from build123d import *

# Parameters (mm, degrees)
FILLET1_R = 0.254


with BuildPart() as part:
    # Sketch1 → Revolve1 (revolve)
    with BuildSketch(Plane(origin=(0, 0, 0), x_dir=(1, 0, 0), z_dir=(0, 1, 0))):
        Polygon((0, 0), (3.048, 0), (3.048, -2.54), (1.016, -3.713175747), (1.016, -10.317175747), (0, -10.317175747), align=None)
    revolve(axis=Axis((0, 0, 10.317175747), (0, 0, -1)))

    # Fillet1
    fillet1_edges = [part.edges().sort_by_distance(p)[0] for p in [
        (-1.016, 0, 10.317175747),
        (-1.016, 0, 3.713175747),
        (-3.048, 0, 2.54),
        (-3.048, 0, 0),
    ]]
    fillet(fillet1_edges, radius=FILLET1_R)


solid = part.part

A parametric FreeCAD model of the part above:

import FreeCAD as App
import Part
import Sketcher
from FreeCAD import Vector
Q = App.Units.Quantity


def edges_at(feature, points):
    """Names of the edges that pass closest to the given points."""
    edges = feature.Shape.Edges
    near = lambda p: min(range(len(edges)), key=lambda i: edges[i].distToShape(Part.Vertex(*p))[0])
    return sorted({f"Edge{near(p) + 1}" for p in points})

doc = App.newDocument("Part")
body = doc.addObject("PartDesign::Body", "Body")

sketch1 = doc.addObject("Sketcher::SketchObject", "Sketch")
body.addObject(sketch1)
sketch1.AttachmentSupport = (doc.XZ_Plane, [""])
sketch1.MapMode = "FlatFace"
sketch1.addGeometry([
    Part.LineSegment(Vector(3, 0, 0), Vector(0, 0, 0)),
    Part.LineSegment(Vector(0, 0, 0), Vector(0, 10.3, 0)),
    Part.LineSegment(Vector(0, 10.3, 0), Vector(1, 10.3, 0)),
    Part.LineSegment(Vector(1, 10.3, 0), Vector(1, 3.7, 0)),
    Part.LineSegment(Vector(1, 3.7, 0), Vector(3, 2.5, 0)),
    Part.LineSegment(Vector(3, 2.5, 0), Vector(3, 0, 0)),
], False)
sketch1.addConstraint([
    Sketcher.Constraint("Coincident", 0, 2, 1, 1),
    Sketcher.Constraint("Coincident", 1, 2, 2, 1),
    Sketcher.Constraint("Coincident", 2, 2, 3, 1),
    Sketcher.Constraint("Coincident", 3, 2, 4, 1),
    Sketcher.Constraint("Coincident", 4, 2, 5, 1),
    Sketcher.Constraint("Coincident", 5, 2, 0, 1),
    Sketcher.Constraint("Horizontal", 0),
    Sketcher.Constraint("Vertical", 1),
    Sketcher.Constraint("Horizontal", 2),
    Sketcher.Constraint("Vertical", 3),
    Sketcher.Constraint("Vertical", 5),
    Sketcher.Constraint("Coincident", 0, 2, -1, 1),
    Sketcher.Constraint("DistanceY", 5, 2, 5, 1, Q("0.1 in")),
    Sketcher.Constraint("Angle", 4, Q("-30 deg")),
    Sketcher.Constraint("DistanceX", 0, 2, 0, 1, Q("0.12 in")),
    Sketcher.Constraint("DistanceX", 2, 1, 2, 2, Q("0.04 in")),
    Sketcher.Constraint("DistanceY", 3, 2, 3, 1, Q("0.26 in")),
])
revolution = doc.addObject("PartDesign::Revolution", "Revolution")
body.addObject(revolution)
revolution.Profile = sketch1
revolution.ReferenceAxis = (sketch1, ["V_Axis"])
revolution.Angle = 360
doc.recompute()

fillet = doc.addObject("PartDesign::Fillet", "Fillet")
body.addObject(fillet)
fillet.Base = (revolution, edges_at(revolution, [
    (-1.016, 0, 10.317),
    (-1.016, 0, 3.713),
    (-3.048, 0, 2.54),
    (-3.048, 0, 0),
]))
fillet.Radius = Q("0.01 in")

doc.recompute()
